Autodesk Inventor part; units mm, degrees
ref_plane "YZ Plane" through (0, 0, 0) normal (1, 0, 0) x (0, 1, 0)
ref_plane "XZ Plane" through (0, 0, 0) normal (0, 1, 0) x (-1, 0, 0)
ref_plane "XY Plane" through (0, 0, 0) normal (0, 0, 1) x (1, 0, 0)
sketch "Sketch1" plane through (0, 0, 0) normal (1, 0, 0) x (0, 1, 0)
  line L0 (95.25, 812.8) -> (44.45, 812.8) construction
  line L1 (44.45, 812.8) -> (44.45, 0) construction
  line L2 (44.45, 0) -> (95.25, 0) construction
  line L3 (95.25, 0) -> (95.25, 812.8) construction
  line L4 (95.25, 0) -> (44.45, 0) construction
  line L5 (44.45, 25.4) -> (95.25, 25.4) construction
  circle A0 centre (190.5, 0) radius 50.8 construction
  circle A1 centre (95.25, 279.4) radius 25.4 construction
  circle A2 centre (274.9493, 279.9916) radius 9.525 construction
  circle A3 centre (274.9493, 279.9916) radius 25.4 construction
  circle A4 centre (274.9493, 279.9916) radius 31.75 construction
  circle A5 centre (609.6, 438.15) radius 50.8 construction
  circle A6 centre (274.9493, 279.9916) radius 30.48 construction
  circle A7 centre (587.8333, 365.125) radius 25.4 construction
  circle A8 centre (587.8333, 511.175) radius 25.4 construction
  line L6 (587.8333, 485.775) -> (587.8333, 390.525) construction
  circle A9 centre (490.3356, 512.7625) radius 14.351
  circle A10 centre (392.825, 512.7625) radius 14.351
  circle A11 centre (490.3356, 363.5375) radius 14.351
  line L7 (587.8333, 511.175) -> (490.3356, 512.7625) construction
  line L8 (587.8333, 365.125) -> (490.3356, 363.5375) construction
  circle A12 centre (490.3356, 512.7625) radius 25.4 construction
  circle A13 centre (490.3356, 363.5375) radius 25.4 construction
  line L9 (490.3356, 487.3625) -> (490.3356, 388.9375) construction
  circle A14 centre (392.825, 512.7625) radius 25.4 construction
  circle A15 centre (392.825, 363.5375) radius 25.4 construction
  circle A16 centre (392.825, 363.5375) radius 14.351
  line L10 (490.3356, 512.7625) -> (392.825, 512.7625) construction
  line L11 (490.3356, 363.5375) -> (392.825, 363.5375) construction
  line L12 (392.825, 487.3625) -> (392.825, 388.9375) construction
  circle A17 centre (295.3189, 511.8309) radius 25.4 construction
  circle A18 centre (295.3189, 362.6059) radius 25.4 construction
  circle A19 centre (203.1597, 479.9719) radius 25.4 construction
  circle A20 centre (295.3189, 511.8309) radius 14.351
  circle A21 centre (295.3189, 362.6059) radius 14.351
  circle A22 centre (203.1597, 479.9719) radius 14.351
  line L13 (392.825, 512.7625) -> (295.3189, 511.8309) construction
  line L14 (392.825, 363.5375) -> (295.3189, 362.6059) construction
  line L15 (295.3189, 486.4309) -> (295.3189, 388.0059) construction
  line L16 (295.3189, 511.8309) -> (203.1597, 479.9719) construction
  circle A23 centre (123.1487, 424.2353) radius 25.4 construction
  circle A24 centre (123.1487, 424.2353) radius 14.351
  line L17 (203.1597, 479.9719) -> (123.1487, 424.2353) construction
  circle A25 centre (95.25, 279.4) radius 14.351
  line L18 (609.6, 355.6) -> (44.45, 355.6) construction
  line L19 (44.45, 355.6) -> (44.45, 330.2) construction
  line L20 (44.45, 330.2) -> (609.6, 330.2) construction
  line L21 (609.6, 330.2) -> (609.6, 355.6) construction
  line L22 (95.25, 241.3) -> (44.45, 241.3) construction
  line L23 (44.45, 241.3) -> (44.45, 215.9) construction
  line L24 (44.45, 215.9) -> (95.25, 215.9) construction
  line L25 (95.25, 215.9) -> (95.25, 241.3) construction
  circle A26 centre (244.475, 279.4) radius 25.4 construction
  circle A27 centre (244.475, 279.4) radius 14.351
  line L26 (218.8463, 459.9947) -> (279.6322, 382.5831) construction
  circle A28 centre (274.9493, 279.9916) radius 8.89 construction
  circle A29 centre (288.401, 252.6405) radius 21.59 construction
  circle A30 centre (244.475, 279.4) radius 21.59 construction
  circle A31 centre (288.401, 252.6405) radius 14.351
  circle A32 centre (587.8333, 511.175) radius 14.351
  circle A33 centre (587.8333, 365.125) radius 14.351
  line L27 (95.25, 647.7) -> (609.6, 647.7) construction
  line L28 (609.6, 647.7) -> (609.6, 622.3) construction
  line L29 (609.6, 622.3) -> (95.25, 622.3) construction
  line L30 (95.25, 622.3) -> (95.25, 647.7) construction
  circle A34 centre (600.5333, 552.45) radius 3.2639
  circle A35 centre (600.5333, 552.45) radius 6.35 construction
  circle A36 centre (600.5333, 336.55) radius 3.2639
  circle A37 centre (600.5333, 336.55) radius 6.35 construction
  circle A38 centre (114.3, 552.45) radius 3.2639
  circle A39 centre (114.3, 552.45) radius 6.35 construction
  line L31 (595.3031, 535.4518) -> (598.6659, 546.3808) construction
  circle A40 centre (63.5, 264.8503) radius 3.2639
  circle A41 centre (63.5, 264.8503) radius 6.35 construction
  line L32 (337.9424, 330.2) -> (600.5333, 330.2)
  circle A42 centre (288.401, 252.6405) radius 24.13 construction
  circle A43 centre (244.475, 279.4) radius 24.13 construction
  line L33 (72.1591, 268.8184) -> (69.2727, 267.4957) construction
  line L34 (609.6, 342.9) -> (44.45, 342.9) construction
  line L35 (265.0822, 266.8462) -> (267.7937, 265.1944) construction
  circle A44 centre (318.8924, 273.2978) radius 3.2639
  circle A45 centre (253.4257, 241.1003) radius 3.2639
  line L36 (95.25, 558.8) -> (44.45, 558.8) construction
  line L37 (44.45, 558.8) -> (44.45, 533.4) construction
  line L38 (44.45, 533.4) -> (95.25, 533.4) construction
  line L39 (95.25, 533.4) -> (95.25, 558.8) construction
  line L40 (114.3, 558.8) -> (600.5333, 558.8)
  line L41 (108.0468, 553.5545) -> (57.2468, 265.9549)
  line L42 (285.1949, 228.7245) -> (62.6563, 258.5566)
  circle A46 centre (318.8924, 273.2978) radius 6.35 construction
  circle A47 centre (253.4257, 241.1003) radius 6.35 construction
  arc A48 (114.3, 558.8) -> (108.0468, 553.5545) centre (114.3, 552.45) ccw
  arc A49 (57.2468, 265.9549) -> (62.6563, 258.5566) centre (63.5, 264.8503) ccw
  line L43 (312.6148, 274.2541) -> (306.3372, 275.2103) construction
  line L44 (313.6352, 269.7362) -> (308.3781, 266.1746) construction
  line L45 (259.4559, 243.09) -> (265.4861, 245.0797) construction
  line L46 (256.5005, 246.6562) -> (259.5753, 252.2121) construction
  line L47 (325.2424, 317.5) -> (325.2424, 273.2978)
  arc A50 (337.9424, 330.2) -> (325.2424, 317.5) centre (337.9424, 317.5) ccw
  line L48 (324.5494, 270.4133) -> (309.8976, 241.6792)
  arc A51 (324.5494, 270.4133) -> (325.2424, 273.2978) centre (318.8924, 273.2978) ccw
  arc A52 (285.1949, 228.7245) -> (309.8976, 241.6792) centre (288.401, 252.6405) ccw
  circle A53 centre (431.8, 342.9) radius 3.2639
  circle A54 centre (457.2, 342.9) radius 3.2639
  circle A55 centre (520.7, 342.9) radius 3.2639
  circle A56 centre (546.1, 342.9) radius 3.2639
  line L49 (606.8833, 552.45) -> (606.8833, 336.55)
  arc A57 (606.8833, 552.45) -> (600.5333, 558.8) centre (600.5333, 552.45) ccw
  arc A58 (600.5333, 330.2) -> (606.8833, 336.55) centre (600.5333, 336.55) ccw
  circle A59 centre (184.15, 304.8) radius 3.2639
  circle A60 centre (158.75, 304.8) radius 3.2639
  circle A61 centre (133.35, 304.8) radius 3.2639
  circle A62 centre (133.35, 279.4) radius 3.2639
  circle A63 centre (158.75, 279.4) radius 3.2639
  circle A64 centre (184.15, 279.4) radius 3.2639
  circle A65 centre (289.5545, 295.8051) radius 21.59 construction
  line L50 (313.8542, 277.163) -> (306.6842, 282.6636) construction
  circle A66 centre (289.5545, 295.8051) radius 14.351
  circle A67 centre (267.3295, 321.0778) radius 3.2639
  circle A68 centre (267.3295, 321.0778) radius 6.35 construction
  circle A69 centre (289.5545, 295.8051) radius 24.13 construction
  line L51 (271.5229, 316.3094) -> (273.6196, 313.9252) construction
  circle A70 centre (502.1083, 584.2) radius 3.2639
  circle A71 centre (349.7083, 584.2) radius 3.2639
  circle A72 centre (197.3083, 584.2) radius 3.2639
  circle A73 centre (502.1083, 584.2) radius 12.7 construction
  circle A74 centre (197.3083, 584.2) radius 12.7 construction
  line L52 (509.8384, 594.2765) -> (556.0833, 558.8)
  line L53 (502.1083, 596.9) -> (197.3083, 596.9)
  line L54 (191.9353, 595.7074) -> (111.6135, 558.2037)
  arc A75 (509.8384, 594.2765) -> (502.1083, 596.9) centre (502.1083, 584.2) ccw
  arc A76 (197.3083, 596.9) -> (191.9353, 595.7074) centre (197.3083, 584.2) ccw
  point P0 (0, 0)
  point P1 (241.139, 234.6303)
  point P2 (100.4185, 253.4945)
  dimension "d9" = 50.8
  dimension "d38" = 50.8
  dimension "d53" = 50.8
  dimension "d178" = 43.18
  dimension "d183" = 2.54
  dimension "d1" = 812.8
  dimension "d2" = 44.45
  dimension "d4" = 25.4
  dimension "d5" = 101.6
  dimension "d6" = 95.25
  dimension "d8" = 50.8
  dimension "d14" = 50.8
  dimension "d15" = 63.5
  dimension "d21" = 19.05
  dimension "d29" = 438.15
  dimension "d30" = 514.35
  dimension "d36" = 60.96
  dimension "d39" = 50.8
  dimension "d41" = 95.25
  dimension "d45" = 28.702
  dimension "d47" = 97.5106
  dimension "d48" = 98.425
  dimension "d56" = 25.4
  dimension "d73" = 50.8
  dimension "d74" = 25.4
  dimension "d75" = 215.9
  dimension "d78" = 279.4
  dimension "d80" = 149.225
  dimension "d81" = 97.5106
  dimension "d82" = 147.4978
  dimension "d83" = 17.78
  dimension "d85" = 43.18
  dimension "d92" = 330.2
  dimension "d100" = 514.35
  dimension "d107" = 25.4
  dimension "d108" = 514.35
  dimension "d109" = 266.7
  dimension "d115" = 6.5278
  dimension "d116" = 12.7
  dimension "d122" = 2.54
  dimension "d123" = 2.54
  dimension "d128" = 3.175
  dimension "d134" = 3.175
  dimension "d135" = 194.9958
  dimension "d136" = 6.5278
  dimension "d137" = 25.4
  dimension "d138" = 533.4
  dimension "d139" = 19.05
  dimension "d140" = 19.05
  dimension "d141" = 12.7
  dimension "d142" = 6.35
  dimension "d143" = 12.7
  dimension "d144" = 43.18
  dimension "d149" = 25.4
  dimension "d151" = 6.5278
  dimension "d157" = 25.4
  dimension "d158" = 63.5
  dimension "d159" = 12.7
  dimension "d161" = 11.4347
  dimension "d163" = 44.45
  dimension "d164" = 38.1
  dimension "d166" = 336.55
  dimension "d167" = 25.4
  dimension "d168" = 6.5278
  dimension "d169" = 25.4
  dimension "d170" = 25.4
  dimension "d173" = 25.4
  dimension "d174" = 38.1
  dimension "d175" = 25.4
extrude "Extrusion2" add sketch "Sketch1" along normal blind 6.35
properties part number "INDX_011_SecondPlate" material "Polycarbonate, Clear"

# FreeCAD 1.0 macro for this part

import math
import FreeCAD as App
import Part
import Sketcher
from FreeCAD import Vector
Q = App.Units.Quantity

doc = App.newDocument("Part")
body = doc.addObject("PartDesign::Body", "Body")

# Sketch on YZ plane
sketch1 = body.newObject("Sketcher::SketchObject", "Sketch")
sketch1.AttachmentSupport = (doc.getObject("YZ_Plane"), [""])
sketch1.MapMode = "FlatFace"
sketch1.addGeometry(Part.ArcOfCircle(Part.Circle(Vector(337.9, 317.5, 0), Vector(0, 0, 1), 12.7), math.radians(90), math.radians(180)), False)
sketch1.addGeometry(Part.LineSegment(Vector(337.9, 330.2, 0), Vector(600.5, 330.2, 0)), False)
sketch1.addGeometry(Part.ArcOfCircle(Part.Circle(Vector(600.5, 336.6, 0), Vector(0, 0, 1), 6.3), math.radians(-90), math.radians(0)), False)
sketch1.addGeometry(Part.LineSegment(Vector(606.9, 336.6, 0), Vector(606.9, 552.5, 0)), False)
sketch1.addGeometry(Part.ArcOfCircle(Part.Circle(Vector(600.5, 552.5, 0), Vector(0, 0, 1), 6.3), math.radians(0), math.radians(90)), False)
sketch1.addGeometry(Part.LineSegment(Vector(600.5, 558.8, 0), Vector(556.1, 558.8, 0)), False)
sketch1.addGeometry(Part.LineSegment(Vector(556.1, 558.8, 0), Vector(509.8, 594.3, 0)), False)
sketch1.addGeometry(Part.ArcOfCircle(Part.Circle(Vector(502.1, 584.2, 0), Vector(0, 0, 1), 12.7), math.radians(53), math.radians(90)), False)
sketch1.addGeometry(Part.LineSegment(Vector(502.1, 596.9, 0), Vector(197.3, 596.9, 0)), False)
sketch1.addGeometry(Part.ArcOfCircle(Part.Circle(Vector(197.3, 584.2, 0), Vector(0, 0, 1), 12.7), math.radians(90), math.radians(115)), False)
sketch1.addGeometry(Part.LineSegment(Vector(191.9, 595.7, 0), Vector(111.6, 558.2, 0)), False)
sketch1.addGeometry(Part.ArcOfCircle(Part.Circle(Vector(114.3, 552.5, 0), Vector(0, 0, 1), 6.3), math.radians(115), math.radians(170)), False)
sketch1.addGeometry(Part.LineSegment(Vector(108, 553.6, 0), Vector(57.2, 266, 0)), False)
sketch1.addGeometry(Part.ArcOfCircle(Part.Circle(Vector(63.5, 264.9, 0), Vector(0, 0, 1), 6.3), math.radians(170), math.radians(262)), False)
sketch1.addGeometry(Part.LineSegment(Vector(62.7, 258.6, 0), Vector(285.2, 228.7, 0)), False)
sketch1.addGeometry(Part.ArcOfCircle(Part.Circle(Vector(288.4, 252.6, 0), Vector(0, 0, 1), 24.1), math.radians(-98), math.radians(-27)), False)
sketch1.addGeometry(Part.LineSegment(Vector(309.9, 241.7, 0), Vector(324.5, 270.4, 0)), False)
sketch1.addGeometry(Part.ArcOfCircle(Part.Circle(Vector(318.9, 273.3, 0), Vector(0, 0, 1), 6.3), math.radians(-27), math.radians(0)), False)
sketch1.addGeometry(Part.LineSegment(Vector(325.2, 273.3, 0), Vector(325.2, 317.5, 0)), False)
sketch1.addGeometry(Part.Circle(Vector(63.5, 264.9, 0), Vector(0, 0, 1), 3.3), False)
sketch1.addGeometry(Part.Circle(Vector(95.2, 279.4, 0), Vector(0, 0, 1), 14.4), False)
sketch1.addGeometry(Part.Circle(Vector(133.3, 279.4, 0), Vector(0, 0, 1), 3.3), False)
sketch1.addGeometry(Part.Circle(Vector(158.8, 279.4, 0), Vector(0, 0, 1), 3.3), False)
sketch1.addGeometry(Part.Circle(Vector(184.2, 279.4, 0), Vector(0, 0, 1), 3.3), False)
sketch1.addGeometry(Part.Circle(Vector(133.3, 304.8, 0), Vector(0, 0, 1), 3.3), False)
sketch1.addGeometry(Part.Circle(Vector(158.8, 304.8, 0), Vector(0, 0, 1), 3.3), False)
sketch1.addGeometry(Part.Circle(Vector(184.2, 304.8, 0), Vector(0, 0, 1), 3.3), False)
sketch1.addGeometry(Part.Circle(Vector(253.4, 241.1, 0), Vector(0, 0, 1), 3.3), False)
sketch1.addGeometry(Part.Circle(Vector(288.4, 252.6, 0), Vector(0, 0, 1), 14.4), False)
sketch1.addGeometry(Part.Circle(Vector(318.9, 273.3, 0), Vector(0, 0, 1), 3.3), False)
sketch1.addGeometry(Part.Circle(Vector(244.5, 279.4, 0), Vector(0, 0, 1), 14.4), False)
sketch1.addGeometry(Part.Circle(Vector(289.6, 295.8, 0), Vector(0, 0, 1), 14.4), False)
sketch1.addGeometry(Part.Circle(Vector(267.3, 321.1, 0), Vector(0, 0, 1), 3.3), False)
sketch1.addGeometry(Part.Circle(Vector(295.3, 362.6, 0), Vector(0, 0, 1), 14.4), False)
sketch1.addGeometry(Part.Circle(Vector(392.8, 363.5, 0), Vector(0, 0, 1), 14.4), False)
sketch1.addGeometry(Part.Circle(Vector(431.8, 342.9, 0), Vector(0, 0, 1), 3.3), False)
sketch1.addGeometry(Part.Circle(Vector(457.2, 342.9, 0), Vector(0, 0, 1), 3.3), False)
sketch1.addGeometry(Part.Circle(Vector(520.7, 342.9, 0), Vector(0, 0, 1), 3.3), False)
sketch1.addGeometry(Part.Circle(Vector(490.3, 363.5, 0), Vector(0, 0, 1), 14.4), False)
sketch1.addGeometry(Part.Circle(Vector(546.1, 342.9, 0), Vector(0, 0, 1), 3.3), False)
sketch1.addGeometry(Part.Circle(Vector(600.5, 336.6, 0), Vector(0, 0, 1), 3.3), False)
sketch1.addGeometry(Part.Circle(Vector(587.8, 365.1, 0), Vector(0, 0, 1), 14.4), False)
sketch1.addGeometry(Part.Circle(Vector(123.1, 424.2, 0), Vector(0, 0, 1), 14.4), False)
sketch1.addGeometry(Part.Circle(Vector(203.2, 480, 0), Vector(0, 0, 1), 14.4), False)
sketch1.addGeometry(Part.Circle(Vector(114.3, 552.5, 0), Vector(0, 0, 1), 3.3), False)
sketch1.addGeometry(Part.Circle(Vector(295.3, 511.8, 0), Vector(0, 0, 1), 14.4), False)
sketch1.addGeometry(Part.Circle(Vector(392.8, 512.8, 0), Vector(0, 0, 1), 14.4), False)
sketch1.addGeometry(Part.Circle(Vector(490.3, 512.8, 0), Vector(0, 0, 1), 14.4), False)
sketch1.addGeometry(Part.Circle(Vector(587.8, 511.2, 0), Vector(0, 0, 1), 14.4), False)
sketch1.addGeometry(Part.Circle(Vector(600.5, 552.5, 0), Vector(0, 0, 1), 3.3), False)
sketch1.addGeometry(Part.Circle(Vector(349.7, 584.2, 0), Vector(0, 0, 1), 3.3), False)
sketch1.addGeometry(Part.Circle(Vector(502.1, 584.2, 0), Vector(0, 0, 1), 3.3), False)
sketch1.addGeometry(Part.Circle(Vector(197.3, 584.2, 0), Vector(0, 0, 1), 3.3), False)
sketch1.addConstraint(Sketcher.Constraint("Tangent", 0, 1, 1, 1))
sketch1.addConstraint(Sketcher.Constraint("Tangent", 1, 2, 2, 1))
sketch1.addConstraint(Sketcher.Constraint("Tangent", 2, 2, 3, 1))
sketch1.addConstraint(Sketcher.Constraint("Tangent", 3, 2, 4, 1))
sketch1.addConstraint(Sketcher.Constraint("Tangent", 4, 2, 5, 1))
sketch1.addConstraint(Sketcher.Constraint("Coincident", 5, 2, 6, 1))
sketch1.addConstraint(Sketcher.Constraint("Tangent", 6, 2, 7, 1))
sketch1.addConstraint(Sketcher.Constraint("Tangent", 7, 2, 8, 1))
sketch1.addConstraint(Sketcher.Constraint("Tangent", 8, 2, 9, 1))
sketch1.addConstraint(Sketcher.Constraint("Tangent", 9, 2, 10, 1))
sketch1.addConstraint(Sketcher.Constraint("Tangent", 10, 2, 11, 1))
sketch1.addConstraint(Sketcher.Constraint("Tangent", 11, 2, 12, 1))
sketch1.addConstraint(Sketcher.Constraint("Tangent", 12, 2, 13, 1))
sketch1.addConstraint(Sketcher.Constraint("Tangent", 13, 2, 14, 1))
sketch1.addConstraint(Sketcher.Constraint("Tangent", 14, 2, 15, 1))
sketch1.addConstraint(Sketcher.Constraint("Tangent", 15, 2, 16, 1))
sketch1.addConstraint(Sketcher.Constraint("Tangent", 16, 2, 17, 1))
sketch1.addConstraint(Sketcher.Constraint("Tangent", 17, 2, 18, 1))
sketch1.addConstraint(Sketcher.Constraint("Tangent", 18, 2, 0, 2))
sketch1.addConstraint(Sketcher.Constraint("Horizontal", 1))
sketch1.addConstraint(Sketcher.Constraint("Vertical", 3))
sketch1.addConstraint(Sketcher.Constraint("Horizontal", 5))
sketch1.addConstraint(Sketcher.Constraint("Horizontal", 8))
sketch1.addConstraint(Sketcher.Constraint("Vertical", 18))
sketch1.addConstraint(Sketcher.Constraint("Coincident", 19, 3, 13, 3))
sketch1.addConstraint(Sketcher.Constraint("Coincident", 28, 3, 15, 3))
sketch1.addConstraint(Sketcher.Constraint("Coincident", 29, 3, 17, 3))
sketch1.addConstraint(Sketcher.Constraint("Coincident", 40, 3, 2, 3))
sketch1.addConstraint(Sketcher.Constraint("Coincident", 44, 3, 11, 3))
sketch1.addConstraint(Sketcher.Constraint("Coincident", 49, 3, 4, 3))
sketch1.addConstraint(Sketcher.Constraint("Coincident", 51, 3, 7, 3))
sketch1.addConstraint(Sketcher.Constraint("Coincident", 52, 3, 9, 3))
sketch1.addConstraint(Sketcher.Constraint("Equal", 2, 4))
sketch1.addConstraint(Sketcher.Constraint("Equal", 0, 7))
sketch1.addConstraint(Sketcher.Constraint("Equal", 7, 9))
sketch1.addConstraint(Sketcher.Constraint("Equal", 4, 11))
sketch1.addConstraint(Sketcher.Constraint("Equal", 11, 13))
sketch1.addConstraint(Sketcher.Constraint("Equal", 13, 17))
sketch1.addConstraint(Sketcher.Constraint("Equal", 19, 21))
sketch1.addConstraint(Sketcher.Constraint("Equal", 21, 22))
sketch1.addConstraint(Sketcher.Constraint("Equal", 22, 23))
sketch1.addConstraint(Sketcher.Constraint("Equal", 23, 24))
sketch1.addConstraint(Sketcher.Constraint("Equal", 24, 25))
sketch1.addConstraint(Sketcher.Constraint("Equal", 25, 26))
sketch1.addConstraint(Sketcher.Constraint("Equal", 26, 27))
sketch1.addConstraint(Sketcher.Constraint("Equal", 20, 28))
sketch1.addConstraint(Sketcher.Constraint("Equal", 27, 29))
sketch1.addConstraint(Sketcher.Constraint("Equal", 28, 30))
sketch1.addConstraint(Sketcher.Constraint("Equal", 30, 31))
sketch1.addConstraint(Sketcher.Constraint("Equal", 29, 32))
sketch1.addConstraint(Sketcher.Constraint("Equal", 31, 33))
sketch1.addConstraint(Sketcher.Constraint("Equal", 33, 34))
sketch1.addConstraint(Sketcher.Constraint("Equal", 32, 35))
sketch1.addConstraint(Sketcher.Constraint("Equal", 35, 36))
sketch1.addConstraint(Sketcher.Constraint("Equal", 36, 37))
sketch1.addConstraint(Sketcher.Constraint("Equal", 34, 38))
sketch1.addConstraint(Sketcher.Constraint("Equal", 37, 39))
sketch1.addConstraint(Sketcher.Constraint("Equal", 39, 40))
sketch1.addConstraint(Sketcher.Constraint("Equal", 38, 41))
sketch1.addConstraint(Sketcher.Constraint("Equal", 41, 42))
sketch1.addConstraint(Sketcher.Constraint("Equal", 42, 43))
sketch1.addConstraint(Sketcher.Constraint("Equal", 40, 44))
sketch1.addConstraint(Sketcher.Constraint("Equal", 43, 45))
sketch1.addConstraint(Sketcher.Constraint("Equal", 45, 46))
sketch1.addConstraint(Sketcher.Constraint("Equal", 46, 47))
sketch1.addConstraint(Sketcher.Constraint("Equal", 47, 48))
sketch1.addConstraint(Sketcher.Constraint("Equal", 44, 49))
sketch1.addConstraint(Sketcher.Constraint("Equal", 49, 50))
sketch1.addConstraint(Sketcher.Constraint("Equal", 50, 51))
sketch1.addConstraint(Sketcher.Constraint("Equal", 51, 52))
sketch1.addConstraint(Sketcher.Constraint("Horizontal", 4, 3, 11, 3))
sketch1.addConstraint(Sketcher.Constraint("Horizontal", 20, 3, 21, 3))
sketch1.addConstraint(Sketcher.Constraint("Horizontal", 21, 3, 22, 3))
sketch1.addConstraint(Sketcher.Constraint("Horizontal", 22, 3, 23, 3))
sketch1.addConstraint(Sketcher.Constraint("Horizontal", 24, 3, 25, 3))
sketch1.addConstraint(Sketcher.Constraint("Horizontal", 25, 3, 26, 3))
sketch1.addConstraint(Sketcher.Constraint("Horizontal", 23, 3, 30, 3))
sketch1.addConstraint(Sketcher.Constraint("Horizontal", 35, 3, 36, 3))
sketch1.addConstraint(Sketcher.Constraint("Horizontal", 36, 3, 37, 3))
sketch1.addConstraint(Sketcher.Constraint("Horizontal", 34, 3, 38, 3))
sketch1.addConstraint(Sketcher.Constraint("Horizontal", 37, 3, 39, 3))
sketch1.addConstraint(Sketcher.Constraint("Horizontal", 46, 3, 47, 3))
sketch1.addConstraint(Sketcher.Constraint("Horizontal", 9, 3, 50, 3))
sketch1.addConstraint(Sketcher.Constraint("Vertical", 21, 3, 24, 3))
sketch1.addConstraint(Sketcher.Constraint("Vertical", 22, 3, 25, 3))
sketch1.addConstraint(Sketcher.Constraint("Vertical", 23, 3, 26, 3))
sketch1.addConstraint(Sketcher.Constraint("Vertical", 33, 3, 45, 3))
sketch1.addConstraint(Sketcher.Constraint("Vertical", 34, 3, 46, 3))
sketch1.addConstraint(Sketcher.Constraint("Vertical", 38, 3, 47, 3))
sketch1.addConstraint(Sketcher.Constraint("Vertical", 41, 3, 48, 3))
sketch1.addConstraint(Sketcher.Constraint("Radius", 0, Q("0.5 in")))
sketch1.addConstraint(Sketcher.Constraint("Diameter", 20, Q("1.13 in")))
sketch1.addConstraint(Sketcher.Constraint("Radius", 2, Q("0.25 in")))
sketch1.addConstraint(Sketcher.Constraint("Diameter", 19, Q("0.257 in")))
sketch1.addConstraint(Sketcher.Constraint("DistanceY", 3, 1, 3, 2, Q("8.5 in")))
sketch1.addConstraint(Sketcher.Constraint("DistanceY", -1, 1, 20, 3, Q("11 in")))
sketch1.addConstraint(Sketcher.Constraint("DistanceY", -1, 1, 0, 1, Q("13 in")))
sketch1.addConstraint(Sketcher.Constraint("DistanceX", 5, 2, 5, 1, Q("1.75 in")))
sketch1.addConstraint(Sketcher.Constraint("DistanceX", -1, 1, 13, 3, Q("2.5 in")))
sketch1.addConstraint(Sketcher.Constraint("DistanceX", 8, 2, 8, 1, Q("12 in")))
sketch1.addConstraint(Sketcher.Constraint("DistanceX", -1, 1, 20, 3, Q("3.75 in")))
sketch1.addConstraint(Sketcher.Constraint("Radius", 15, Q("0.95 in")))
sketch1.addConstraint(Sketcher.Constraint("DistanceY", -1, 1, 7, 3, Q("23 in")))
sketch1.addConstraint(Sketcher.Constraint("DistanceY", -1, 1, 24, 3, Q("12 in")))
sketch1.addConstraint(Sketcher.Constraint("DistanceX", -1, 1, 35, 3, Q("17 in")))
sketch1.addConstraint(Sketcher.Constraint("DistanceX", -1, 1, 36, 3, Q("18 in")))
sketch1.addConstraint(Sketcher.Constraint("DistanceX", -1, 1, 11, 3, Q("4.5 in")))
sketch1.addConstraint(Sketcher.Constraint("DistanceY", -1, 1, 35, 3, Q("13.5 in")))
sketch1.addConstraint(Sketcher.Constraint("DistanceX", -1, 1, 37, 3, Q("20.5 in")))
sketch1.addConstraint(Sketcher.Constraint("DistanceX", -1, 1, 39, 3, Q("21.5 in")))
sketch1.addConstraint(Sketcher.Constraint("Distance", 10, Q("3.49 in")))
sketch1.addConstraint(Sketcher.Constraint("DistanceX", -1, 1, 21, 3, Q("5.25 in")))
sketch1.addConstraint(Sketcher.Constraint("DistanceX", -1, 1, 22, 3, Q("6.25 in")))
sketch1.addConstraint(Sketcher.Constraint("DistanceX", -1, 1, 23, 3, Q("7.25 in")))
sketch1.addConstraint(Sketcher.Constraint("DistanceX", -1, 1, 30, 3, Q("9.625 in")))
sketch1.addConstraint(Sketcher.Constraint("DistanceY", -1, 1, 34, 3, Q("14.3125 in")))
sketch1.addConstraint(Sketcher.Constraint("DistanceY", -1, 1, 41, 3, Q("14.375 in")))
sketch1.addConstraint(Sketcher.Constraint("DistanceY", -1, 1, 46, 3, Q("20.1875 in")))
sketch1.addConstraint(Sketcher.Constraint("DistanceY", -1, 1, 48, 3, Q("20.125 in")))
sketch1.addConstraint(Sketcher.Constraint("Distance", 6, Q("2.2947 in")))
sketch1.addConstraint(Sketcher.Constraint("Distance", 12, Q("11.4981 in")))
sketch1.addConstraint(Sketcher.Constraint("DistanceX", 1, 1, 1, 2, Q("262.591 mm")))
sketch1.addConstraint(Sketcher.Constraint("DistanceY", 18, 1, 18, 2, Q("44.2022 mm")))
sketch1.addConstraint(Sketcher.Constraint("DistanceX", -1, 1, 27, 3, Q("9.9774 in")))
sketch1.addConstraint(Sketcher.Constraint("DistanceY", -1, 1, 14, 2, Q("9.0049 in")))
sketch1.addConstraint(Sketcher.Constraint("DistanceX", -1, 1, 15, 2, Q("12.2007 in")))
sketch1.addConstraint(Sketcher.Constraint("DistanceY", -1, 1, 27, 3, Q("241.1003 mm")))
sketch1.addConstraint(Sketcher.Constraint("DistanceX", -1, 1, 31, 3, Q("289.5545 mm")))
sketch1.addConstraint(Sketcher.Constraint("DistanceY", -1, 1, 31, 3, Q("295.805 mm")))
sketch1.addConstraint(Sketcher.Constraint("DistanceX", -1, 1, 32, 3, Q("267.3295 mm")))
sketch1.addConstraint(Sketcher.Constraint("DistanceY", -1, 1, 32, 3, Q("321.0778 mm")))
sketch1.addConstraint(Sketcher.Constraint("DistanceX", -1, 1, 33, 3, Q("295.319 mm")))
sketch1.addConstraint(Sketcher.Constraint("DistanceY", -1, 1, 33, 3, Q("362.606 mm")))
sketch1.addConstraint(Sketcher.Constraint("DistanceX", -1, 1, 34, 3, Q("392.825 mm")))
sketch1.addConstraint(Sketcher.Constraint("DistanceX", -1, 1, 38, 3, Q("490.3356 mm")))
sketch1.addConstraint(Sketcher.Constraint("DistanceX", -1, 1, 41, 3, Q("587.8333 mm")))
sketch1.addConstraint(Sketcher.Constraint("DistanceX", -1, 1, 42, 3, Q("123.1487 mm")))
sketch1.addConstraint(Sketcher.Constraint("DistanceY", -1, 1, 42, 3, Q("424.2353 mm")))
sketch1.addConstraint(Sketcher.Constraint("DistanceX", -1, 1, 43, 3, Q("203.1597 mm")))
sketch1.addConstraint(Sketcher.Constraint("DistanceY", -1, 1, 43, 3, Q("479.972 mm")))
sketch1.addConstraint(Sketcher.Constraint("DistanceY", -1, 1, 45, 3, Q("511.831 mm")))
sketch1.addConstraint(Sketcher.Constraint("DistanceX", -1, 1, 50, 3, Q("349.7083 mm")))
pad1 = body.newObject("PartDesign::Pad", "Pad")
pad1.Profile = sketch1
pad1.Length = Q("0.25 in")

doc.recompute()
